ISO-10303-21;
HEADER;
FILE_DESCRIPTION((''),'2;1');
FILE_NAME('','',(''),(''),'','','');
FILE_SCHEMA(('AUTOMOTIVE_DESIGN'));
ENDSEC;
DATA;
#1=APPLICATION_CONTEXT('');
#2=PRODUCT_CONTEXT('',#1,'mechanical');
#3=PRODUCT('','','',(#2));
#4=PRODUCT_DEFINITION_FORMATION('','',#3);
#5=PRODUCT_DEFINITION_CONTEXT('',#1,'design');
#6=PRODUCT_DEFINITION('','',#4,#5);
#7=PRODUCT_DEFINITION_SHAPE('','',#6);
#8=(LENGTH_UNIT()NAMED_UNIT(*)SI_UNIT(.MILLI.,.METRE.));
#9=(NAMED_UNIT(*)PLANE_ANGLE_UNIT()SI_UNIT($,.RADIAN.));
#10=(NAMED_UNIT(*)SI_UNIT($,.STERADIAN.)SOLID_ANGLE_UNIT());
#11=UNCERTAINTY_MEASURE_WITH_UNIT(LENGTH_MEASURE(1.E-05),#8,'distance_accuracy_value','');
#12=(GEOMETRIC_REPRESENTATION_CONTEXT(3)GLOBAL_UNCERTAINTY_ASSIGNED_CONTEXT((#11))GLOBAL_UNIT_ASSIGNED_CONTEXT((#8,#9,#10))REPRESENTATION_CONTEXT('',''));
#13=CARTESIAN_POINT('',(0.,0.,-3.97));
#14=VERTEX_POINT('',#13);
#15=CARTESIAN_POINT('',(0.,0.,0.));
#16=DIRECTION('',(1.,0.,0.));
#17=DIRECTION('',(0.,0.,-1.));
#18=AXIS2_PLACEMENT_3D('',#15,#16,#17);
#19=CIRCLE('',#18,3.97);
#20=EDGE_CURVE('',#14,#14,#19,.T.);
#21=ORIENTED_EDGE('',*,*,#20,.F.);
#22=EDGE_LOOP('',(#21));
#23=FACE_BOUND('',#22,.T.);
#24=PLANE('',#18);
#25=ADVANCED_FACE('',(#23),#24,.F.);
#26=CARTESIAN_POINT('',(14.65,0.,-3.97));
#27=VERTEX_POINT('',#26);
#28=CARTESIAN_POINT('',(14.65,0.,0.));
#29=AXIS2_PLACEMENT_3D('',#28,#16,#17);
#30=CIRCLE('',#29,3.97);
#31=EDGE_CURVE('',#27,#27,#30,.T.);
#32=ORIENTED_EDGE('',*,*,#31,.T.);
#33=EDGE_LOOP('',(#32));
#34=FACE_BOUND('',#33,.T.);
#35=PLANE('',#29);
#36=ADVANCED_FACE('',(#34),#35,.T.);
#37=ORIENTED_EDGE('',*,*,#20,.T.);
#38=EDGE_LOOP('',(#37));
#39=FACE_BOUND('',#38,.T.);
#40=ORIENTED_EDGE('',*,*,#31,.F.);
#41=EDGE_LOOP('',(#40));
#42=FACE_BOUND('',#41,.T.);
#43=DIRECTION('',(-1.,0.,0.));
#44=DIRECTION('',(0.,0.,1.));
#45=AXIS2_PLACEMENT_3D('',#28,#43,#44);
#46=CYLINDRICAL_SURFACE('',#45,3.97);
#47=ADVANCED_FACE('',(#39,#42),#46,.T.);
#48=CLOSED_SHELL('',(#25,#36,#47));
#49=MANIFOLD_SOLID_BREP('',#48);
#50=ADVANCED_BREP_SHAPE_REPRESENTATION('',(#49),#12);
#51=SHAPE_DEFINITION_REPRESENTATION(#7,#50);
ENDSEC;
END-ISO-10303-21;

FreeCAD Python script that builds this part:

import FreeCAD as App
import Part
import Sketcher

V = App.Vector
Q = App.Units.Quantity

doc = App.newDocument("Part")
body = doc.addObject("PartDesign::Body", "Body")

sketch1 = body.newObject("Sketcher::SketchObject", "Sketch")
sketch1.AttachmentSupport = (doc.getObject("YZ_Plane"), [""])
sketch1.MapMode = "FlatFace"
sketch1.addGeometry(Part.Circle(V(0, 0, 0), V(0, 0, 1), 4), False)
sketch1.addConstraint([
    Sketcher.Constraint("Coincident", 0, 3, -1, 1),
    Sketcher.Constraint("Diameter", 0, Q("7.94 mm")),
])
pad1 = body.newObject("PartDesign::Pad", "Pad")
pad1.Profile = sketch1
pad1.Length = 14.65

doc.recompute()
